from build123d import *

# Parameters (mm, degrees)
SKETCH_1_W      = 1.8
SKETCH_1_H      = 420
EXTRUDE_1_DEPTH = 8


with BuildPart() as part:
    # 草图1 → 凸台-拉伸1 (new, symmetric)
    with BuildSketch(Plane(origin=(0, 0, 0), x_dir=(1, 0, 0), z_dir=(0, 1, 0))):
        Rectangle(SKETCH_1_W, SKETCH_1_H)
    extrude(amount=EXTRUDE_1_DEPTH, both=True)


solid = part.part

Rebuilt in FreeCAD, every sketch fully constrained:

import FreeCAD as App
import Part
import Sketcher
from FreeCAD import Vector


def add_polygon(sketch, points):
    """Adds a closed chain of lines whose ends are joined by coincident constraints."""
    first, n = sketch.GeometryCount, len(points)
    for a, b in zip(points, points[1:] + points[:1]):
        sketch.addGeometry(Part.LineSegment(App.Vector(*a, 0), App.Vector(*b, 0)), False)
    for i in range(n):
        sketch.addConstraint(Sketcher.Constraint("Coincident", first + i, 2, first + (i + 1) % n, 1))

doc = App.newDocument("Part")
body = doc.addObject("PartDesign::Body", "Body")

sketch1 = doc.addObject("Sketcher::SketchObject", "Sketch")
body.addObject(sketch1)
sketch1.AttachmentSupport = (doc.XZ_Plane, [""])
sketch1.MapMode = "FlatFace"
add_polygon(sketch1, [(-0.9, -210), (-0.9, 210), (0.9, 210), (0.9, -210)])
sketch1.addConstraint(Sketcher.Constraint("Vertical", 0))
sketch1.addConstraint(Sketcher.Constraint("Horizontal", 1))
sketch1.addConstraint(Sketcher.Constraint("Vertical", 2))
sketch1.addConstraint(Sketcher.Constraint("Horizontal", 3))
sketch1.addConstraint(Sketcher.Constraint("Symmetric", 0, 2, 2, 2, -1, 1))
sketch1.addConstraint(Sketcher.Constraint("DistanceY", 0, 1, 0, 2, 420.0))
sketch1.addConstraint(Sketcher.Constraint("DistanceX", 1, 1, 1, 2, 1.8))
pad1 = doc.addObject("PartDesign::Pad", "Pad")
body.addObject(pad1)
pad1.Profile = sketch1
pad1.Length = 16
pad1.Midplane = True

doc.recompute()
